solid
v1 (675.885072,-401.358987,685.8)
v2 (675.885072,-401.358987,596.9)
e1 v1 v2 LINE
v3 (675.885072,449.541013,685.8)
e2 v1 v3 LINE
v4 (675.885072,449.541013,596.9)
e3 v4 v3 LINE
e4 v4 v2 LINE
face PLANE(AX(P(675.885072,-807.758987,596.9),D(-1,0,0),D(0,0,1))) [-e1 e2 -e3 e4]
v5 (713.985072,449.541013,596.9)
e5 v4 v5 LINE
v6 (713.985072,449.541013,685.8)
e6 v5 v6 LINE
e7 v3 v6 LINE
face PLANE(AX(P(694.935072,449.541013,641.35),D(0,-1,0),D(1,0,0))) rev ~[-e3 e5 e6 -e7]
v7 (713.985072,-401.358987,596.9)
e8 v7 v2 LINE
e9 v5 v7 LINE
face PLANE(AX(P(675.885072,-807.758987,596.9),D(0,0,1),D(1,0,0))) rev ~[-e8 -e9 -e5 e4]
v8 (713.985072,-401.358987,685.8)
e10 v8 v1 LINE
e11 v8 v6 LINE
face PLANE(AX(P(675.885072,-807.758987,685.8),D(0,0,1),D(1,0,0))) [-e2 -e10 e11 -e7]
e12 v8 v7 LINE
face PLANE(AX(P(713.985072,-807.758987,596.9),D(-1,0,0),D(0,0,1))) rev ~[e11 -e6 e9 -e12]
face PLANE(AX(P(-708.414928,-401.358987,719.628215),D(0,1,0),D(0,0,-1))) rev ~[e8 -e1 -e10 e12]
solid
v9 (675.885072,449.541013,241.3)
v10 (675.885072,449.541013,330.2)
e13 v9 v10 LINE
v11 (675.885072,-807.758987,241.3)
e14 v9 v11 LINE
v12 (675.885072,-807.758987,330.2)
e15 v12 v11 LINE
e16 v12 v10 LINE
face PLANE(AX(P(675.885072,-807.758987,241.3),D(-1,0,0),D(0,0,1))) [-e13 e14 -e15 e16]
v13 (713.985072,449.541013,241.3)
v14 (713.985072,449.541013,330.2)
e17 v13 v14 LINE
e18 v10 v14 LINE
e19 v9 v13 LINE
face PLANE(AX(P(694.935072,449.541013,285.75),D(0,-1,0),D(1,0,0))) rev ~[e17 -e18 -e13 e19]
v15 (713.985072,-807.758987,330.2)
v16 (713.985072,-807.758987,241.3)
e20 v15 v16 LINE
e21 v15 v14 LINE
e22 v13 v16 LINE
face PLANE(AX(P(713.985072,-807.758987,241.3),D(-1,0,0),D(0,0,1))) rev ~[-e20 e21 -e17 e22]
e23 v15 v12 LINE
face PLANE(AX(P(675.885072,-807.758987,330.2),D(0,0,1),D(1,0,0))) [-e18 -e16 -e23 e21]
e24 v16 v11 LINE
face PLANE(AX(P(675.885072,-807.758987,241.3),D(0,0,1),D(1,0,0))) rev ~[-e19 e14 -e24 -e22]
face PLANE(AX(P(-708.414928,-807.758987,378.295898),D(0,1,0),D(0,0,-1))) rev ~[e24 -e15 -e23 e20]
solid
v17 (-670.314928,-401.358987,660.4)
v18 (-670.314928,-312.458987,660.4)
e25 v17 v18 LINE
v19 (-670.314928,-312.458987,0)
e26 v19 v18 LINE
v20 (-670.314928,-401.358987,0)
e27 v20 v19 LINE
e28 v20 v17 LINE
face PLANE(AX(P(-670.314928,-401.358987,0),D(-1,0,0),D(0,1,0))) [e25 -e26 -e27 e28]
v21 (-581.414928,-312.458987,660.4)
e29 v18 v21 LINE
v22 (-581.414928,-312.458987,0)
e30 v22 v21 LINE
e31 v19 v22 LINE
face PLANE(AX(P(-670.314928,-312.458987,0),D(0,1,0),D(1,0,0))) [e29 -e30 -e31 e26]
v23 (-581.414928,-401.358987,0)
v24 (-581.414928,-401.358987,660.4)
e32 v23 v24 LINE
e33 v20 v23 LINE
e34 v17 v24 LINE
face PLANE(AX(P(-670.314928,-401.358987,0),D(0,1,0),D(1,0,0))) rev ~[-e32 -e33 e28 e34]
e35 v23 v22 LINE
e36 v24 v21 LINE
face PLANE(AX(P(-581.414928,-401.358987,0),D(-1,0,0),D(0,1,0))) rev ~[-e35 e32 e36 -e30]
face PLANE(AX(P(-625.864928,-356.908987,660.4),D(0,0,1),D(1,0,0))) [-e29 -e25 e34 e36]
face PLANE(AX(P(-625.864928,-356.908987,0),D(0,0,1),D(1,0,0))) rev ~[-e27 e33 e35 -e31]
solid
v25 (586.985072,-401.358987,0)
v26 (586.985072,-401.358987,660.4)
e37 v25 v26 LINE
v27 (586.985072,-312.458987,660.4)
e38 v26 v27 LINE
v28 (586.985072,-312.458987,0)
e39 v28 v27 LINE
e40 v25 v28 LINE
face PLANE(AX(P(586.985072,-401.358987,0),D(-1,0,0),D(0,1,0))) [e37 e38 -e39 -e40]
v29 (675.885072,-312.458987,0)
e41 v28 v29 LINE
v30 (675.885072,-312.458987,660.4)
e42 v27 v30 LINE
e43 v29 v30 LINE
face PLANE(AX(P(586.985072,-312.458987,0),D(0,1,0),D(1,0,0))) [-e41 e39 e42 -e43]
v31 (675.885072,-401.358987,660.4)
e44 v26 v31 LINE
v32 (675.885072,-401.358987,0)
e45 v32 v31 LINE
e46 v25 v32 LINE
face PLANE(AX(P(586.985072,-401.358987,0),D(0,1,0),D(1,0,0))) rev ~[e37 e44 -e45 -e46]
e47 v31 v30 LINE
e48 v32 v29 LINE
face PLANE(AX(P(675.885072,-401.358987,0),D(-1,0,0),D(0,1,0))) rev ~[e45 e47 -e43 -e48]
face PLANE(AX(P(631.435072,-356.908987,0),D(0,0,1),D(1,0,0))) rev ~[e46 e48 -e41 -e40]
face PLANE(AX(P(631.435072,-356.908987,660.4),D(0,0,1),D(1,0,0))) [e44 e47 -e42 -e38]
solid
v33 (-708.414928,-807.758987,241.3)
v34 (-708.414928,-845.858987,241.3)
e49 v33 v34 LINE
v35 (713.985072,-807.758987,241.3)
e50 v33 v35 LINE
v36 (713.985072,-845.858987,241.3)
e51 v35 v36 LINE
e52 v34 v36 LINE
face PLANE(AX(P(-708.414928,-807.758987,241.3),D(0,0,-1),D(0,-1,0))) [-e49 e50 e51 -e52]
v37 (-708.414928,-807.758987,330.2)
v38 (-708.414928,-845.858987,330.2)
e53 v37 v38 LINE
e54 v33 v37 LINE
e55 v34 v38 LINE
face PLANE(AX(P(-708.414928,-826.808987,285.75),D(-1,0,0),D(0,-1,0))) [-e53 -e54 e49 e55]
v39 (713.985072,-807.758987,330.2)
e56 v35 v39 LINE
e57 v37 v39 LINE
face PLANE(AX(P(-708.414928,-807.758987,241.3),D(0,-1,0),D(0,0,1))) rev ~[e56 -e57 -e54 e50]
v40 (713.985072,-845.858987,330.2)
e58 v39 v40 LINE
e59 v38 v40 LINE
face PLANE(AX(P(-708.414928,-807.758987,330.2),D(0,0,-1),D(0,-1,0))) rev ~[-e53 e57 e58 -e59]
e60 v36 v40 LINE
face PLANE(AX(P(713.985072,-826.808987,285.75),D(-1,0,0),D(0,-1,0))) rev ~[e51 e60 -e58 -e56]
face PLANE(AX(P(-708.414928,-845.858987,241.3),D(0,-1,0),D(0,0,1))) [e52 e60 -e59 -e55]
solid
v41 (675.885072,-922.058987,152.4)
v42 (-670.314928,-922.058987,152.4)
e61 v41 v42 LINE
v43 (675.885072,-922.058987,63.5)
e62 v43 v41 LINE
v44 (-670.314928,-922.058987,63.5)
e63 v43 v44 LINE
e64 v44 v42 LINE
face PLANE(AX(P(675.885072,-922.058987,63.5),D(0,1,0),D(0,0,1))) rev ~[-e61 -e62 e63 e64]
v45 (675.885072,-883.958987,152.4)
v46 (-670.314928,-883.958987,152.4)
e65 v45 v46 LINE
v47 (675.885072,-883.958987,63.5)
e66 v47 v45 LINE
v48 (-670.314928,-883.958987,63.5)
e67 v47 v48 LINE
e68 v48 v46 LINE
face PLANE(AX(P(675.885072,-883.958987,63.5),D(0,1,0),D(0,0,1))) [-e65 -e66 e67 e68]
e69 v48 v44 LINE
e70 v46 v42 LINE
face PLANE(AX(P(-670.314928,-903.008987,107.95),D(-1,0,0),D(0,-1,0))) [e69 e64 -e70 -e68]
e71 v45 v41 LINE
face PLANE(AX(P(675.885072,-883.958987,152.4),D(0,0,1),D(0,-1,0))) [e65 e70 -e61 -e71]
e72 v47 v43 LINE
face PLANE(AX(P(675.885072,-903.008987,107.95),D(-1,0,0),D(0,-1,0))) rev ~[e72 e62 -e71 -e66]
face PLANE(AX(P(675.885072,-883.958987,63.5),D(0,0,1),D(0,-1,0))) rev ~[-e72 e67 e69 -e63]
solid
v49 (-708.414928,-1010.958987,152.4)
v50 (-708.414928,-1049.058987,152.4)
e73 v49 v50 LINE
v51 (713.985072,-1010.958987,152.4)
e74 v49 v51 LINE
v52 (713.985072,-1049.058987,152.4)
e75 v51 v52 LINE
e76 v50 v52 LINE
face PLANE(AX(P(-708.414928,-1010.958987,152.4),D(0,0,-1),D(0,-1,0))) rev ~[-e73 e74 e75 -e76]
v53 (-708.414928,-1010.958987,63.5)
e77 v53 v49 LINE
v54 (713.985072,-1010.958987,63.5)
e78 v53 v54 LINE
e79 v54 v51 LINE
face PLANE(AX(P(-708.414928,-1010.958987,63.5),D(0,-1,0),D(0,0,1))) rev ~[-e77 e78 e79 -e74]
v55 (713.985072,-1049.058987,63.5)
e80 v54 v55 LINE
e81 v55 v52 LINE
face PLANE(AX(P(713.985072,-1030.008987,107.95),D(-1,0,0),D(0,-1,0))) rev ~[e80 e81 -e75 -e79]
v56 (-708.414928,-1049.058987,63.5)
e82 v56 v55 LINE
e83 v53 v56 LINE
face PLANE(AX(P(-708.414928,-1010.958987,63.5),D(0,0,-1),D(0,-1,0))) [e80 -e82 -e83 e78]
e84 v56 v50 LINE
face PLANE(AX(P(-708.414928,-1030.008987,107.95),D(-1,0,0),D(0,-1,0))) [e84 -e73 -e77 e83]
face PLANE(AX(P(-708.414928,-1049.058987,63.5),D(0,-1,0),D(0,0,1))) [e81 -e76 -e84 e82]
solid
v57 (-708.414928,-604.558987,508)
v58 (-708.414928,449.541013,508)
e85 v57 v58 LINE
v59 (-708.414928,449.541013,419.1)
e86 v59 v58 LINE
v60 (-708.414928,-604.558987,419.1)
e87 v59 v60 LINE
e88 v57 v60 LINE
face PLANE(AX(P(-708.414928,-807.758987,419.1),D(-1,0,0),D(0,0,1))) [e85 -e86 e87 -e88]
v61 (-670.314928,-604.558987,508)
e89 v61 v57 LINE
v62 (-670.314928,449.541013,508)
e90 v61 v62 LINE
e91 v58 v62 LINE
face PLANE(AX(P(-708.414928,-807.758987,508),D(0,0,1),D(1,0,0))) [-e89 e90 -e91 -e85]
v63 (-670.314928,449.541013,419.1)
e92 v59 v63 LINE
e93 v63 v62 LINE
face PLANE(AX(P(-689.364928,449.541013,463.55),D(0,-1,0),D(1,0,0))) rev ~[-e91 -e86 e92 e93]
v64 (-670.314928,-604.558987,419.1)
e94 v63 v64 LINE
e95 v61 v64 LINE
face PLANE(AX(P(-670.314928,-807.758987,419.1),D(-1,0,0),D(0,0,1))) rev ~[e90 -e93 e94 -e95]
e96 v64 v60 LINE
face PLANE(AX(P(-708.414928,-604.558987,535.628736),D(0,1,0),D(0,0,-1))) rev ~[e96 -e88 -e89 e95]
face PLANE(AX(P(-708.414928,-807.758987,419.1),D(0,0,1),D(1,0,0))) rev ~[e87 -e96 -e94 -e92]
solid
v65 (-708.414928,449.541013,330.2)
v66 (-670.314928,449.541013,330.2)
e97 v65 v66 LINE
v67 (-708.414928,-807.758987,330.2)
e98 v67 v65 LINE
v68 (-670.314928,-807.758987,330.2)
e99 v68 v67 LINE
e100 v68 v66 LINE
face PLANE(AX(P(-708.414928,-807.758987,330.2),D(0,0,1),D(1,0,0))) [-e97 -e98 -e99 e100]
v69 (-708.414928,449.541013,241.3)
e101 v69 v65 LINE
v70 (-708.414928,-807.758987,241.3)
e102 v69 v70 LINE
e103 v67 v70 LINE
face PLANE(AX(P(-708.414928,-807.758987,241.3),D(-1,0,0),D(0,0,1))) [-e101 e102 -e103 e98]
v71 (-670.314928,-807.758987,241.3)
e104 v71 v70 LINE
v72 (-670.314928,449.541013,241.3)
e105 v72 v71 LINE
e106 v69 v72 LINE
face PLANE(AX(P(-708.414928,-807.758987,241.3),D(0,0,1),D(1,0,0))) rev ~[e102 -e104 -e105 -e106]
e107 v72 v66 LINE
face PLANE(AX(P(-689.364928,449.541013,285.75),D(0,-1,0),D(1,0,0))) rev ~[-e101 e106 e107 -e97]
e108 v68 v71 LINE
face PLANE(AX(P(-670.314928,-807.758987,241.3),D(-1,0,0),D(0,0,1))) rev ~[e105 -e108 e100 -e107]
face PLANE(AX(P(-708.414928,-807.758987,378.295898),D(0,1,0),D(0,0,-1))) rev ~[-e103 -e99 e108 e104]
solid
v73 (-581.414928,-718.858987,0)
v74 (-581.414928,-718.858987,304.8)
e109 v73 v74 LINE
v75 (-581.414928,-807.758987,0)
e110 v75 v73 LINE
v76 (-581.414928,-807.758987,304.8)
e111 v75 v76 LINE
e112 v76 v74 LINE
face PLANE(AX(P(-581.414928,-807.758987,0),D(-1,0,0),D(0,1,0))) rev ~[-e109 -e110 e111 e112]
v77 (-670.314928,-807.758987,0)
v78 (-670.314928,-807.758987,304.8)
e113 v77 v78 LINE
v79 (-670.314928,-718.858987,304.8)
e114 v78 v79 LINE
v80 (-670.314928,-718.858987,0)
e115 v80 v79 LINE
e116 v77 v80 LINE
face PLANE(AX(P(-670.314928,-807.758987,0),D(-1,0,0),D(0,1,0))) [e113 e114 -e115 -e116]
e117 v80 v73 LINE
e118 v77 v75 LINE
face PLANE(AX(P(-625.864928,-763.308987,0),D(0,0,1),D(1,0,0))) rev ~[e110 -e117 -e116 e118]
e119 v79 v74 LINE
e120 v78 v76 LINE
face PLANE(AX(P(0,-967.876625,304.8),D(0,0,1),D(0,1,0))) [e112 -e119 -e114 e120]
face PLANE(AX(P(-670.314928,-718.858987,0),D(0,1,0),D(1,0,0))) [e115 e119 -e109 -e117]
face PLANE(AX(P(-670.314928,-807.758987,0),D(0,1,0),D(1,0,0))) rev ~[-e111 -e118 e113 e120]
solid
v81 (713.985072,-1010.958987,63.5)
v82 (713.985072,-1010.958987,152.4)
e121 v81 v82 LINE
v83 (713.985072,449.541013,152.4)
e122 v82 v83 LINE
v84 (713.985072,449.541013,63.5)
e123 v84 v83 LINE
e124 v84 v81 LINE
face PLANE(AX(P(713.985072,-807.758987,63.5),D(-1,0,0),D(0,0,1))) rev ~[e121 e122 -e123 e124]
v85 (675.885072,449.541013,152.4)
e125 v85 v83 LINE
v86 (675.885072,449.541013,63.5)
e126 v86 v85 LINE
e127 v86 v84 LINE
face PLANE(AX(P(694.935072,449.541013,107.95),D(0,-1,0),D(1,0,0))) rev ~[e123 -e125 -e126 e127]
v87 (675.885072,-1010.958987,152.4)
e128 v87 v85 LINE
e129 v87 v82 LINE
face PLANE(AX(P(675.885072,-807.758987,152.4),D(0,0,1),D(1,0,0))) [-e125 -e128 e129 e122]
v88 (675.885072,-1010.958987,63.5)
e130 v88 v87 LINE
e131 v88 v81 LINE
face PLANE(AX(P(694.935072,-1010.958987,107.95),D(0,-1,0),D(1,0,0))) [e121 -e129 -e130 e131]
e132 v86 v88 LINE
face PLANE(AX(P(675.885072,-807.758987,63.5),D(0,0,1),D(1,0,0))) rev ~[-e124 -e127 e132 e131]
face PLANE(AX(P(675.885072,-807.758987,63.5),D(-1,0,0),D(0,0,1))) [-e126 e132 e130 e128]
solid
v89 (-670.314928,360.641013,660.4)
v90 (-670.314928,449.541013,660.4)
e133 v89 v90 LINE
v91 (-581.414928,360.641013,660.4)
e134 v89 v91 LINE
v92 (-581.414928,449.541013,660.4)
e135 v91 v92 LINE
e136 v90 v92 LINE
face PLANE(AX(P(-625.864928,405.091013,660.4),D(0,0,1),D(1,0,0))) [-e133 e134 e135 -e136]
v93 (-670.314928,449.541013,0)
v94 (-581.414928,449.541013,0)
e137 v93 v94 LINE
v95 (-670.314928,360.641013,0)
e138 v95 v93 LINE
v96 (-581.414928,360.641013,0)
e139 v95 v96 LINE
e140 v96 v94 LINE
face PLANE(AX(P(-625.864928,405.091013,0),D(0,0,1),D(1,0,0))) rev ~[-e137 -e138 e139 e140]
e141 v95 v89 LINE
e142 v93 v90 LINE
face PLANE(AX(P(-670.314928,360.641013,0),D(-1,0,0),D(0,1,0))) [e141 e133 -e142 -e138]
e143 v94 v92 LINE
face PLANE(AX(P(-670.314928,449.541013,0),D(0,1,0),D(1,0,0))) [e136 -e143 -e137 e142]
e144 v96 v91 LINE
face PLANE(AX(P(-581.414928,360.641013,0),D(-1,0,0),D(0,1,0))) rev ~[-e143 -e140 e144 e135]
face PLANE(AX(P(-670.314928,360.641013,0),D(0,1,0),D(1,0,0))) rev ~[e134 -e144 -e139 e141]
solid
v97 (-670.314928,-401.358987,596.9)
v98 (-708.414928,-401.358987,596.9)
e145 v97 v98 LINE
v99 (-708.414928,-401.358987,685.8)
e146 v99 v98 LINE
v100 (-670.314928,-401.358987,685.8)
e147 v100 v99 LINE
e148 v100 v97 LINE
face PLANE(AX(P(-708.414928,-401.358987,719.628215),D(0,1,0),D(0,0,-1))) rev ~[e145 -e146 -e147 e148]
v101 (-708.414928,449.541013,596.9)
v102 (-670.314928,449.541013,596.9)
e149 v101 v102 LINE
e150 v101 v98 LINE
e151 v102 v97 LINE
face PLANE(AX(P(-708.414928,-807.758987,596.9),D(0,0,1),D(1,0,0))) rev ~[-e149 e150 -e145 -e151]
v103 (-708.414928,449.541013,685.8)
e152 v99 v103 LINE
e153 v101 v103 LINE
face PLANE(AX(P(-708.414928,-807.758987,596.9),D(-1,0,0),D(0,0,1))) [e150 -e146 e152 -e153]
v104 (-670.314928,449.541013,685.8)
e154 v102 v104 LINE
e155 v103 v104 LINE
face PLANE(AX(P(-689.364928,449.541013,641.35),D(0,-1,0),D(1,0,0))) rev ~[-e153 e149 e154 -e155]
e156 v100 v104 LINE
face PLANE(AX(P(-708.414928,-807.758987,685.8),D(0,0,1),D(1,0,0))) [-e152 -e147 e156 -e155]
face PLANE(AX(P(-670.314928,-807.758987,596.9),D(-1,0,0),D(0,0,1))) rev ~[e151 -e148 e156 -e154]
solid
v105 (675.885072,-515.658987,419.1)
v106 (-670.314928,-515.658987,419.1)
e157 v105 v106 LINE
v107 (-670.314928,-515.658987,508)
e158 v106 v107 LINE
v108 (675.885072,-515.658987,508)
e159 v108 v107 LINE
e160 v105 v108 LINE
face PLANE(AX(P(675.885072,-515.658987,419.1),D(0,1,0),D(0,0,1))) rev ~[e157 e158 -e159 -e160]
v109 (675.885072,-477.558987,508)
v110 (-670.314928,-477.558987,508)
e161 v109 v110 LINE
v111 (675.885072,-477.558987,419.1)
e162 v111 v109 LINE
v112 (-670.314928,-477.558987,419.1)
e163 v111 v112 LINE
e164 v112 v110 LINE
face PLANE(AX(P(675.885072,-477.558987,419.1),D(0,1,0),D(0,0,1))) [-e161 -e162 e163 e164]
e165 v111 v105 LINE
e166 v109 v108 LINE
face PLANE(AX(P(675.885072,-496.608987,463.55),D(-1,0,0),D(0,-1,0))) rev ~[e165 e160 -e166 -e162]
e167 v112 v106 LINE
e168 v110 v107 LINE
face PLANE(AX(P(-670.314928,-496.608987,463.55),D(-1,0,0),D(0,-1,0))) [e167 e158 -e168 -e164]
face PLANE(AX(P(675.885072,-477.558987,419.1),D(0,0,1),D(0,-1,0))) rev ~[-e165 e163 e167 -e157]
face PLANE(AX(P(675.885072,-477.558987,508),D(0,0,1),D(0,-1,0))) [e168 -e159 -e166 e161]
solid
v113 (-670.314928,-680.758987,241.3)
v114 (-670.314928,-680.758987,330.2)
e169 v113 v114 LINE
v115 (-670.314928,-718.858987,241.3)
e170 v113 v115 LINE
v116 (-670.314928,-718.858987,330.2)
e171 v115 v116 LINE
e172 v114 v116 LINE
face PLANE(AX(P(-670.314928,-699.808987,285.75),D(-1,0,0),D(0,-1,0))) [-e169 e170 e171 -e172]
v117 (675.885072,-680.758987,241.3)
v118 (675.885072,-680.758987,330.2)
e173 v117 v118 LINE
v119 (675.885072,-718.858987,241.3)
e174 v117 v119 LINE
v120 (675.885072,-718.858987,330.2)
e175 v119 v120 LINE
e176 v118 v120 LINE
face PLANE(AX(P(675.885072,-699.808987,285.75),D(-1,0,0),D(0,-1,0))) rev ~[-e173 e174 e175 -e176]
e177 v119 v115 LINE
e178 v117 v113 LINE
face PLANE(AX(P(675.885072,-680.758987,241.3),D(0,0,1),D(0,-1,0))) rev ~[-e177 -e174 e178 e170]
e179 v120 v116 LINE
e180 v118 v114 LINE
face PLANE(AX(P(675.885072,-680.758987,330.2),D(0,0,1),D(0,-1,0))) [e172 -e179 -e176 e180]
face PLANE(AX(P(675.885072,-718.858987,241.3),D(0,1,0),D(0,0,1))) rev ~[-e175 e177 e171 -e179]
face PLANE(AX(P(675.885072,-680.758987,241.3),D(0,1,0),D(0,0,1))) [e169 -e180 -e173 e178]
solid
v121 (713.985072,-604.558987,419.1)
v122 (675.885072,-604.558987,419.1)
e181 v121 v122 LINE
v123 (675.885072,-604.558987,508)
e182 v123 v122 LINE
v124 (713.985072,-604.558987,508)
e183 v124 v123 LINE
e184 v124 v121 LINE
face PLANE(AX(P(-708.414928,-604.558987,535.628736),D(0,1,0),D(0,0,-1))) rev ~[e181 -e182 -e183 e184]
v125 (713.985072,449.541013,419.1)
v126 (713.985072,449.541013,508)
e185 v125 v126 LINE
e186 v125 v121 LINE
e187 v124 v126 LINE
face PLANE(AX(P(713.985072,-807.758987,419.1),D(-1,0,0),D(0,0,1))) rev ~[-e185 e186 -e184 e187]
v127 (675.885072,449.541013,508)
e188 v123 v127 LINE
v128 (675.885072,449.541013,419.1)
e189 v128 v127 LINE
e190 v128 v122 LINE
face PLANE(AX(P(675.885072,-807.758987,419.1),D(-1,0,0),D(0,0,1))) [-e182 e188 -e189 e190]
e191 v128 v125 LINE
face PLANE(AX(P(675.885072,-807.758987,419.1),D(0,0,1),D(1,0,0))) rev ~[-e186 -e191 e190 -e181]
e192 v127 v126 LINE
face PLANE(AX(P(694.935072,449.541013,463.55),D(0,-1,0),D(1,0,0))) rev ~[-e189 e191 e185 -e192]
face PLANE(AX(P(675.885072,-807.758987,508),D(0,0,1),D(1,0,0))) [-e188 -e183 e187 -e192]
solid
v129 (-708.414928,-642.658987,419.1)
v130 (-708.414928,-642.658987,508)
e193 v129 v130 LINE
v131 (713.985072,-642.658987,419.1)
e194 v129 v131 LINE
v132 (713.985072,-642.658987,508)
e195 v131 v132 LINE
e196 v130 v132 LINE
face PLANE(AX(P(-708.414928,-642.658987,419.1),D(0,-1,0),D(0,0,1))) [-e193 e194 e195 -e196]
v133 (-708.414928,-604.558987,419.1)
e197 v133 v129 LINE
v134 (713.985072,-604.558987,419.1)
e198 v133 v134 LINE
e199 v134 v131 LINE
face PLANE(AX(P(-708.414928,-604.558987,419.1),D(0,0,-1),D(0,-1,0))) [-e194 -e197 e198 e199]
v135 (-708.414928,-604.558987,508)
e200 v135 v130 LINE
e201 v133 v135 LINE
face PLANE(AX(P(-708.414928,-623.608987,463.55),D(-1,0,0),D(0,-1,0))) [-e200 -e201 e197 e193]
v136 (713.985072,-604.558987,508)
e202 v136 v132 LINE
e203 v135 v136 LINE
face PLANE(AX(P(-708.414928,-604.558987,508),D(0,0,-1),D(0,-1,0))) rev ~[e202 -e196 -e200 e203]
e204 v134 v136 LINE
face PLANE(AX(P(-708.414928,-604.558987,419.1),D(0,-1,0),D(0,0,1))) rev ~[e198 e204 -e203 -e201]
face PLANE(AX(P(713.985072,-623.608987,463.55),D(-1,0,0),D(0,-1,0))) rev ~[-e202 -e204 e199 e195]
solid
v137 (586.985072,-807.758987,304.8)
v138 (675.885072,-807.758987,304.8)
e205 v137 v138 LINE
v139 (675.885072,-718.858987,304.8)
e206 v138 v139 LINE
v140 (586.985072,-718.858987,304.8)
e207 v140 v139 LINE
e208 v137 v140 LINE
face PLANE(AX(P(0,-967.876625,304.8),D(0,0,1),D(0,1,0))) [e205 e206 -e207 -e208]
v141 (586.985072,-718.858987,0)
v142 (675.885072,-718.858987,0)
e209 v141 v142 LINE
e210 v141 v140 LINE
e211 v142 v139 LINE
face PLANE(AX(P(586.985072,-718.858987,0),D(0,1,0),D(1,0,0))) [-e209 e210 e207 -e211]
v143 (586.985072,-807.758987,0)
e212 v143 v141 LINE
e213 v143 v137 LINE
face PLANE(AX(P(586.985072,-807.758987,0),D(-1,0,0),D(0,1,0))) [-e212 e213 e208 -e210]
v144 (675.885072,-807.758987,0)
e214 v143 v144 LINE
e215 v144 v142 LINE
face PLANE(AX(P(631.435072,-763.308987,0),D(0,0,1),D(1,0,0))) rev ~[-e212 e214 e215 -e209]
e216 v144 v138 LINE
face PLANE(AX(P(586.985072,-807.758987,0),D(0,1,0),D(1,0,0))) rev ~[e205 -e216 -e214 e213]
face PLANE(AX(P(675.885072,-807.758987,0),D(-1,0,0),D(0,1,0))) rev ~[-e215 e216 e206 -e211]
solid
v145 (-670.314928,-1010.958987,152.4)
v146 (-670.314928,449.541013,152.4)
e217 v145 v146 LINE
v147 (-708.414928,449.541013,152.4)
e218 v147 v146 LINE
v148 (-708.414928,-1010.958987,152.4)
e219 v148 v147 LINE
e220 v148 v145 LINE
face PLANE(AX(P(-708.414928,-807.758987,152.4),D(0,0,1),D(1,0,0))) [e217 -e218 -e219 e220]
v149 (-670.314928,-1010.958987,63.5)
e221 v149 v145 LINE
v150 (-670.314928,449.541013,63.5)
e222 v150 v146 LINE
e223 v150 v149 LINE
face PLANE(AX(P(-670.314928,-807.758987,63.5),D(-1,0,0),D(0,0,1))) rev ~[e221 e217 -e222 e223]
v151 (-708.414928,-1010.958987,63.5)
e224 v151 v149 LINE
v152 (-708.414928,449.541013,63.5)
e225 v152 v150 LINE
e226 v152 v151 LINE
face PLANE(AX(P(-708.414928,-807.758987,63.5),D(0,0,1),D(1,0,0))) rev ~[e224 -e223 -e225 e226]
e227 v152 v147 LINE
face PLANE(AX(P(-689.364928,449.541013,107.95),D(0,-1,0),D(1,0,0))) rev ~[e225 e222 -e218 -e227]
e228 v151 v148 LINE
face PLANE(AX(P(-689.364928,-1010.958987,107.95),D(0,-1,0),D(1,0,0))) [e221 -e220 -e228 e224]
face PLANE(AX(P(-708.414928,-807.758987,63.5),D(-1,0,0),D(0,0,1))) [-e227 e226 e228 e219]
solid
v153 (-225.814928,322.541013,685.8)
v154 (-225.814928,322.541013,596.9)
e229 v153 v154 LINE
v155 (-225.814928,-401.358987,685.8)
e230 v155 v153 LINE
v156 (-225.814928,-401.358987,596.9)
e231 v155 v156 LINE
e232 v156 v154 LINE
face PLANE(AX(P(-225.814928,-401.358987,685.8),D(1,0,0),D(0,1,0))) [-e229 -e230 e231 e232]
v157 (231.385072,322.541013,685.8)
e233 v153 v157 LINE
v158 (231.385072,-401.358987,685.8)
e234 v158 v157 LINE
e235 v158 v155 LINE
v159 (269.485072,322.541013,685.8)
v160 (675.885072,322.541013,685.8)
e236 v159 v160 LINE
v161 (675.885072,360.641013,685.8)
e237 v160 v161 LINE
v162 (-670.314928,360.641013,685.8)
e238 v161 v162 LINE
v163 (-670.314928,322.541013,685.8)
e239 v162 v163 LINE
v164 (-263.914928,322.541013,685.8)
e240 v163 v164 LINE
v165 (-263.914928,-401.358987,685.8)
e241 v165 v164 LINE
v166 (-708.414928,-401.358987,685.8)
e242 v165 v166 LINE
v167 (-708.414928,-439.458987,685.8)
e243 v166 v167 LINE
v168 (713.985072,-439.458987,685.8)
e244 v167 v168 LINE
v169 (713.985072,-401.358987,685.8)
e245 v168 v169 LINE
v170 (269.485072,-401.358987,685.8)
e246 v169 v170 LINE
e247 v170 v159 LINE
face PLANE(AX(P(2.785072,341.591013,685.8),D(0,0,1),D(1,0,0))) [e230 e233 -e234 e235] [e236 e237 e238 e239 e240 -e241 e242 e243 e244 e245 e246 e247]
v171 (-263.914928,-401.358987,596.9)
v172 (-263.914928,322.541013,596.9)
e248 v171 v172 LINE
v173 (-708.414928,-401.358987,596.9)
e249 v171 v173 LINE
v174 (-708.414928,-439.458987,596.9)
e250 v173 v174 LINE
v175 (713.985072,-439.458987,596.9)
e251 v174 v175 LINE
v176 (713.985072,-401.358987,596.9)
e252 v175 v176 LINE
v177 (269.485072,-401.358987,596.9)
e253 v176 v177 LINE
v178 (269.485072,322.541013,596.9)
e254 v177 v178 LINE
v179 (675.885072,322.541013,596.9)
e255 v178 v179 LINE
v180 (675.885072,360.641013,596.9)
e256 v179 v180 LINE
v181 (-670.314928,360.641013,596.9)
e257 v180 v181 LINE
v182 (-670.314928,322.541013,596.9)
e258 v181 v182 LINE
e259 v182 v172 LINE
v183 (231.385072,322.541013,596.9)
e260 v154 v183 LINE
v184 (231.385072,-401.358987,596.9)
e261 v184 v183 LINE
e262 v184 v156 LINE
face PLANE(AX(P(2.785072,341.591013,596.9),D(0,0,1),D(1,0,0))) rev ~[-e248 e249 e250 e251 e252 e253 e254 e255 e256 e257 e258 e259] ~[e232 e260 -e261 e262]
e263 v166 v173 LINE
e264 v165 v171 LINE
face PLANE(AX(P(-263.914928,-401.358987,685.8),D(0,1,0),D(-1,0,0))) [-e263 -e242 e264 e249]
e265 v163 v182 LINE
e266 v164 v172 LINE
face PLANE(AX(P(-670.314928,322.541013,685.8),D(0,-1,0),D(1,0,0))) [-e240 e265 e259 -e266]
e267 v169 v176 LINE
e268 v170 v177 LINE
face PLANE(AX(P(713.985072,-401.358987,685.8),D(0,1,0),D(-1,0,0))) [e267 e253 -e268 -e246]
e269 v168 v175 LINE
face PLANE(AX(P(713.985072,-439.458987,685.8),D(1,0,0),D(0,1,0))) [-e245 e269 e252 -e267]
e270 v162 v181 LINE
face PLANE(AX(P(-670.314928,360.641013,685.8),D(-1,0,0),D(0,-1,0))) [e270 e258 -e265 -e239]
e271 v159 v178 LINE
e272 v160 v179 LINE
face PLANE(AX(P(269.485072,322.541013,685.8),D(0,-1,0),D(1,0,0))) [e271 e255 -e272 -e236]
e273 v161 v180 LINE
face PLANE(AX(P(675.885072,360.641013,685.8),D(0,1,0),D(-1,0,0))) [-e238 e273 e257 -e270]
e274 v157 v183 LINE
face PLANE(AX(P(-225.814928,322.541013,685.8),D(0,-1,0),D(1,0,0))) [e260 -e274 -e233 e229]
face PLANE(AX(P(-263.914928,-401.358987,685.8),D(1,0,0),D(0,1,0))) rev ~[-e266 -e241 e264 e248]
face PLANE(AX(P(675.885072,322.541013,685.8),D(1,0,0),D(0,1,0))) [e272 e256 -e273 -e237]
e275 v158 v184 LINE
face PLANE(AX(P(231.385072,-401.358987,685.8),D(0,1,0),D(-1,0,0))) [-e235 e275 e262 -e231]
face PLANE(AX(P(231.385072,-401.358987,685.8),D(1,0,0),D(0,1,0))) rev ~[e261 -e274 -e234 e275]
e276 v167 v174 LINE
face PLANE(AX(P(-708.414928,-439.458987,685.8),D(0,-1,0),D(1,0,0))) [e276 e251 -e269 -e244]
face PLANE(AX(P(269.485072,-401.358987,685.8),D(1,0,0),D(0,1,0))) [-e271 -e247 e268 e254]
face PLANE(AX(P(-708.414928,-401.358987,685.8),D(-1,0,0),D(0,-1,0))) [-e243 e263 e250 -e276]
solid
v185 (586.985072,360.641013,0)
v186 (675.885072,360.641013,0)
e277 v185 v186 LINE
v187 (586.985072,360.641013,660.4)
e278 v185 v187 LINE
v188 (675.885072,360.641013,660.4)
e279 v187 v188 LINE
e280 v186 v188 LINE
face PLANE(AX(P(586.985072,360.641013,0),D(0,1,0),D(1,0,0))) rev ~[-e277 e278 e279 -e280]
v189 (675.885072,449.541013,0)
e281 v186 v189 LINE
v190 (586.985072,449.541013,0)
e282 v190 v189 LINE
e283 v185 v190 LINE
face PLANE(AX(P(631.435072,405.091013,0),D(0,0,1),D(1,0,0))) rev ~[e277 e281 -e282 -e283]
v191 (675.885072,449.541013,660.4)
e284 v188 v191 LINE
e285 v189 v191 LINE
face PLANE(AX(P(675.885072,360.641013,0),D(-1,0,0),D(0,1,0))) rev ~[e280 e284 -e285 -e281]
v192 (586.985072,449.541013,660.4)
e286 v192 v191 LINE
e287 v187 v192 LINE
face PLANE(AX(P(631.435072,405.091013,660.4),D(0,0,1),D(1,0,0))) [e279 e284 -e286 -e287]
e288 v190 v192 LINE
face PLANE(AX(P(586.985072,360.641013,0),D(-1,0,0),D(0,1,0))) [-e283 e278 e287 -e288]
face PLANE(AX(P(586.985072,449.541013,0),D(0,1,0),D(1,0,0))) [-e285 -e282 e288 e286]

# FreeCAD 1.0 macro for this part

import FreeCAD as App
import Part
import Sketcher

V = App.Vector
Q = App.Units.Quantity


def add_polygon(sketch, points):
    """Adds a closed chain of lines whose ends are joined by coincident constraints."""
    first, n = sketch.GeometryCount, len(points)
    for a, b in zip(points, points[1:] + points[:1]):
        sketch.addGeometry(Part.LineSegment(App.Vector(*a, 0), App.Vector(*b, 0)), False)
    for i in range(n):
        sketch.addConstraint(Sketcher.Constraint("Coincident", first + i, 2, first + (i + 1) % n, 1))

doc = App.newDocument("Part")
body = doc.addObject("PartDesign::Body", "Body")

# Sketch on XY plane
sketch1 = doc.addObject("Sketcher::SketchObject", "Sketch")
body.addObject(sketch1)
sketch1.AttachmentSupport = (doc.XY_Plane, [""])
sketch1.MapMode = "FlatFace"
add_polygon(sketch1, [(-670, 450), (-670, 361), (-581, 361), (-581, 450)])  # lines 0-3
sketch1.addConstraint([
    Sketcher.Constraint("Vertical", 0),
    Sketcher.Constraint("Horizontal", 1),
    Sketcher.Constraint("Vertical", 2),
    Sketcher.Constraint("Horizontal", 3),
    Sketcher.Constraint("Equal", 3, 0),
    Sketcher.Constraint("DistanceX", 1, 1, 1, 2, Q("3.5 in")),
    Sketcher.Constraint("DistanceX", 0, 2, -1, 1, 670.314928),
    Sketcher.Constraint("DistanceY", -1, 1, 0, 2, 360.641013),
])
pad1 = doc.addObject("PartDesign::Pad", "Pad")
body.addObject(pad1)
pad1.Profile = sketch1
pad1.Length = Q("26 in")
body2 = doc.addObject("PartDesign::Body", "Body001")

# Sketch on XY plane
sketch2 = doc.addObject("Sketcher::SketchObject", "Sketch001")
body2.addObject(sketch2)
sketch2.AttachmentSupport = (doc.getObject("XY_Plane001"), [""])
sketch2.MapMode = "FlatFace"
add_polygon(sketch2, [(587, 450), (587, 361), (676, 361), (676, 450)])  # lines 0-3
sketch2.addConstraint([
    Sketcher.Constraint("Vertical", 0),
    Sketcher.Constraint("Horizontal", 1),
    Sketcher.Constraint("Vertical", 2),
    Sketcher.Constraint("Horizontal", 3),
    Sketcher.Constraint("Equal", 3, 0),
    Sketcher.Constraint("DistanceX", 1, 1, 1, 2, Q("3.5 in")),
    Sketcher.Constraint("DistanceX", -1, 1, 0, 2, 586.985072),
    Sketcher.Constraint("DistanceY", -1, 1, 0, 2, 360.641013),
])
pad2 = doc.addObject("PartDesign::Pad", "Pad001")
body2.addObject(pad2)
pad2.Profile = sketch2
pad2.Length = Q("26 in")
body3 = doc.addObject("PartDesign::Body", "Body002")

# Sketch on XY plane
sketch3 = doc.addObject("Sketcher::SketchObject", "Sketch002")
body3.addObject(sketch3)
sketch3.AttachmentSupport = (doc.getObject("XY_Plane002"), [""])
sketch3.MapMode = "FlatFace"
add_polygon(sketch3, [(-670, -312), (-670, -401), (-581, -401), (-581, -312)])  # lines 0-3
sketch3.addConstraint([
    Sketcher.Constraint("Vertical", 0),
    Sketcher.Constraint("Horizontal", 1),
    Sketcher.Constraint("Vertical", 2),
    Sketcher.Constraint("Horizontal", 3),
    Sketcher.Constraint("Equal", 3, 0),
    Sketcher.Constraint("DistanceX", 1, 1, 1, 2, Q("3.5 in")),
    Sketcher.Constraint("DistanceX", 0, 2, -1, 1, 670.314928),
    Sketcher.Constraint("DistanceY", 0, 2, -1, 1, 401.358987),
])
pad3 = doc.addObject("PartDesign::Pad", "Pad002")
body3.addObject(pad3)
pad3.Profile = sketch3
pad3.Length = Q("26 in")
body4 = doc.addObject("PartDesign::Body", "Body003")

# Sketch on XY plane
sketch4 = doc.addObject("Sketcher::SketchObject", "Sketch003")
body4.addObject(sketch4)
sketch4.AttachmentSupport = (doc.getObject("XY_Plane003"), [""])
sketch4.MapMode = "FlatFace"
add_polygon(sketch4, [(587, -312), (587, -401), (676, -401), (676, -312)])  # lines 0-3
sketch4.addConstraint([
    Sketcher.Constraint("Vertical", 0),
    Sketcher.Constraint("Horizontal", 1),
    Sketcher.Constraint("Vertical", 2),
    Sketcher.Constraint("Horizontal", 3),
    Sketcher.Constraint("Equal", 3, 0),
    Sketcher.Constraint("DistanceX", 1, 1, 1, 2, Q("3.5 in")),
    Sketcher.Constraint("DistanceX", -1, 1, 0, 2, 586.985072),
    Sketcher.Constraint("DistanceY", 0, 2, -1, 1, 401.358987),
])
pad4 = doc.addObject("PartDesign::Pad", "Pad003")
body4.addObject(pad4)
pad4.Profile = sketch4
pad4.Length = Q("26 in")
body5 = doc.addObject("PartDesign::Body", "Body004")

# Sketch on XY plane
sketch5 = doc.addObject("Sketcher::SketchObject", "Sketch004")
body5.addObject(sketch5)
sketch5.AttachmentSupport = (doc.getObject("XY_Plane004"), [""])
sketch5.MapMode = "FlatFace"
add_polygon(sketch5, [(-670, -719), (-670, -808), (-581, -808), (-581, -719)])  # lines 0-3
sketch5.addConstraint([
    Sketcher.Constraint("Vertical", 0),
    Sketcher.Constraint("Horizontal", 1),
    Sketcher.Constraint("Vertical", 2),
    Sketcher.Constraint("Horizontal", 3),
    Sketcher.Constraint("Equal", 3, 0),
    Sketcher.Constraint("DistanceX", 1, 1, 1, 2, Q("3.5 in")),
    Sketcher.Constraint("DistanceX", 0, 2, -1, 1, 670.314928),
    Sketcher.Constraint("DistanceY", 0, 2, -1, 1, 807.758987),
])
pad5 = doc.addObject("PartDesign::Pad", "Pad004")
body5.addObject(pad5)
pad5.Profile = sketch5
pad5.Length = Q("26 in")
body6 = doc.addObject("PartDesign::Body", "Body005")

# Sketch on XY plane
sketch6 = doc.addObject("Sketcher::SketchObject", "Sketch005")
body6.addObject(sketch6)
sketch6.AttachmentSupport = (doc.getObject("XY_Plane005"), [""])
sketch6.MapMode = "FlatFace"
add_polygon(sketch6, [(587, -719), (587, -808), (676, -808), (676, -719)])  # lines 0-3
sketch6.addConstraint([
    Sketcher.Constraint("Vertical", 0),
    Sketcher.Constraint("Horizontal", 1),
    Sketcher.Constraint("Vertical", 2),
    Sketcher.Constraint("Horizontal", 3),
    Sketcher.Constraint("Equal", 3, 0),
    Sketcher.Constraint("DistanceX", 1, 1, 1, 2, Q("3.5 in")),
    Sketcher.Constraint("DistanceX", -1, 1, 0, 2, 586.985072),
    Sketcher.Constraint("DistanceY", 0, 2, -1, 1, 807.758987),
])
pad6 = doc.addObject("PartDesign::Pad", "Pad005")
body6.addObject(pad6)
pad6.Profile = sketch6
pad6.Length = Q("26 in")
body7 = doc.addObject("PartDesign::Body", "Body006")

# Sketch on YZ plane
sketch7 = doc.addObject("Sketcher::SketchObject", "Sketch006")
body7.addObject(sketch7)
sketch7.AttachmentSupport = (doc.getObject("YZ_Plane006"), [""])
sketch7.MapMode = "FlatFace"
add_polygon(sketch7, [(-968, 708), (-968, 305), (-598, 305), (-598, 708)])  # lines 0-3
sketch7.addConstraint([
    Sketcher.Constraint("Vertical", 0),
    Sketcher.Constraint("Horizontal", 1),
    Sketcher.Constraint("Vertical", 2),
    Sketcher.Constraint("Horizontal", 3),
    Sketcher.Constraint("DistanceY", -1, 1, 0, 2, Q("12 in")),
    Sketcher.Constraint("DistanceX", 1, 1, 1, 2, 370.226704),
    Sketcher.Constraint("DistanceY", 0, 2, 0, 1, 403.192124),
    Sketcher.Constraint("DistanceX", 1, 2, -1, 1, 597.64992),
])
pad7 = doc.addObject("PartDesign::Pad", "Pad006")
body7.addObject(pad7)
pad7.Profile = sketch7
pad7.Type = "TwoLengths"
pad7.Length = Q("46.6 in")
pad7.Length2 = Q("44.6 in")
pad7.Reversed = True
doc.recompute()

body8 = doc.addObject("PartDesign::Body", "Body007")
body8.BaseFeature = body7
boolean = doc.addObject("PartDesign::Boolean", "Boolean")
body5.addObject(boolean)
boolean.Type = "Cut"
boolean.addObjects([body8])
doc.recompute()

boolean2 = doc.addObject("PartDesign::Boolean", "Boolean001")
body6.addObject(boolean2)
boolean2.Type = "Cut"
boolean2.addObjects([body7])
body9 = doc.addObject("PartDesign::Body", "Body008")

# Sketch on XZ plane
sketch8 = doc.addObject("Sketcher::SketchObject", "Sketch007")
body9.addObject(sketch8)
sketch8.AttachmentSupport = (doc.getObject("XZ_Plane008"), [""])
sketch8.MapMode = "FlatFace"
sketch8.AttachmentOffset = App.Placement(V(0, 0, 807.758987), App.Rotation())
add_polygon(sketch8, [(-708, 686), (-708, 597), (-670, 597), (-670, 686)])  # lines 0-3
sketch8.addConstraint([
    Sketcher.Constraint("Vertical", 0),
    Sketcher.Constraint("Horizontal", 1),
    Sketcher.Constraint("Vertical", 2),
    Sketcher.Constraint("Horizontal", 3),
    Sketcher.Constraint("DistanceX", 1, 1, 1, 2, Q("1.5 in")),
    Sketcher.Constraint("DistanceY", 0, 2, 0, 1, Q("3.5 in")),
    Sketcher.Constraint("DistanceY", -1, 1, 2, 2, Q("27 in")),
    Sketcher.Constraint("DistanceX", 0, 2, -1, 1, 708.414928),
])
pad8 = doc.addObject("PartDesign::Pad", "Pad007")
body9.addObject(pad8)
pad8.Profile = sketch8
pad8.Type = "TwoLengths"
pad8.Length = Q("49.5 in")
pad8.Length2 = Q("8 in")
pad8.Reversed = True
body10 = doc.addObject("PartDesign::Body", "Body009")

# Sketch on XZ plane
sketch9 = doc.addObject("Sketcher::SketchObject", "Sketch008")
body10.addObject(sketch9)
sketch9.AttachmentSupport = (doc.getObject("XZ_Plane009"), [""])
sketch9.MapMode = "FlatFace"
sketch9.AttachmentOffset = App.Placement(V(0, 0, 807.758987), App.Rotation())
add_polygon(sketch9, [(676, 686), (676, 597), (714, 597), (714, 686)])  # lines 0-3
sketch9.addConstraint([
    Sketcher.Constraint("Vertical", 0),
    Sketcher.Constraint("Horizontal", 1),
    Sketcher.Constraint("Vertical", 2),
    Sketcher.Constraint("Horizontal", 3),
    Sketcher.Constraint("DistanceX", 1, 1, 1, 2, Q("1.5 in")),
    Sketcher.Constraint("DistanceY", 0, 2, 0, 1, Q("3.5 in")),
    Sketcher.Constraint("DistanceY", -1, 1, 2, 2, Q("27 in")),
    Sketcher.Constraint("DistanceX", -1, 1, 0, 2, 675.885072),
])
pad9 = doc.addObject("PartDesign::Pad", "Pad008")
body10.addObject(pad9)
pad9.Profile = sketch9
pad9.Type = "TwoLengths"
pad9.Length = Q("49.5 in")
pad9.Length2 = Q("8 in")
pad9.Reversed = True
body11 = doc.addObject("PartDesign::Body", "Body010")

# Sketch on XZ plane
sketch10 = doc.addObject("Sketcher::SketchObject", "Sketch009")
body11.addObject(sketch10)
sketch10.AttachmentSupport = (doc.getObject("XZ_Plane010"), [""])
sketch10.MapMode = "FlatFace"
sketch10.AttachmentOffset = App.Placement(V(0, 0, 807.758987), App.Rotation())
add_polygon(sketch10, [(-708, 330), (-708, 241), (-670, 241), (-670, 330)])  # lines 0-3
sketch10.addConstraint([
    Sketcher.Constraint("Vertical", 0),
    Sketcher.Constraint("Horizontal", 1),
    Sketcher.Constraint("Vertical", 2),
    Sketcher.Constraint("Horizontal", 3),
    Sketcher.Constraint("DistanceX", 1, 1, 1, 2, Q("1.5 in")),
    Sketcher.Constraint("DistanceY", 0, 2, 0, 1, Q("3.5 in")),
    Sketcher.Constraint("DistanceY", -1, 1, 2, 2, Q("13 in")),
    Sketcher.Constraint("DistanceX", 0, 2, -1, 1, 708.414928),
])
pad10 = doc.addObject("PartDesign::Pad", "Pad009")
body11.addObject(pad10)
pad10.Profile = sketch10
pad10.Type = "TwoLengths"
pad10.Length = Q("49.5 in")
pad10.Length2 = Q("8 in")
pad10.Reversed = True
body12 = doc.addObject("PartDesign::Body", "Body011")

# Sketch on XZ plane
sketch11 = doc.addObject("Sketcher::SketchObject", "Sketch010")
body12.addObject(sketch11)
sketch11.AttachmentSupport = (doc.getObject("XZ_Plane011"), [""])
sketch11.MapMode = "FlatFace"
sketch11.AttachmentOffset = App.Placement(V(0, 0, 807.758987), App.Rotation())
add_polygon(sketch11, [(676, 330), (676, 241), (714, 241), (714, 330)])  # lines 0-3
sketch11.addConstraint([
    Sketcher.Constraint("Vertical", 0),
    Sketcher.Constraint("Horizontal", 1),
    Sketcher.Constraint("Vertical", 2),
    Sketcher.Constraint("Horizontal", 3),
    Sketcher.Constraint("DistanceX", 1, 1, 1, 2, Q("1.5 in")),
    Sketcher.Constraint("DistanceY", 0, 2, 0, 1, Q("3.5 in")),
    Sketcher.Constraint("DistanceY", -1, 1, 2, 2, Q("13 in")),
    Sketcher.Constraint("DistanceX", -1, 1, 0, 2, 675.885072),
])
pad11 = doc.addObject("PartDesign::Pad", "Pad010")
body12.addObject(pad11)
pad11.Profile = sketch11
pad11.Type = "TwoLengths"
pad11.Length = Q("49.5 in")
pad11.Length2 = Q("8 in")
pad11.Reversed = True
body13 = doc.addObject("PartDesign::Body", "Body012")

# Sketch on XZ plane
sketch12 = doc.addObject("Sketcher::SketchObject", "Sketch011")
body13.addObject(sketch12)
sketch12.AttachmentSupport = (doc.getObject("XZ_Plane012"), [""])
sketch12.MapMode = "FlatFace"
sketch12.AttachmentOffset = App.Placement(V(0, 0, 807.758987), App.Rotation())
add_polygon(sketch12, [(-708, 152), (-708, 64), (-670, 64), (-670, 152)])  # lines 0-3
sketch12.addConstraint([
    Sketcher.Constraint("Vertical", 0),
    Sketcher.Constraint("Horizontal", 1),
    Sketcher.Constraint("Vertical", 2),
    Sketcher.Constraint("Horizontal", 3),
    Sketcher.Constraint("DistanceX", 1, 1, 1, 2, Q("1.5 in")),
    Sketcher.Constraint("DistanceY", 0, 2, 0, 1, Q("3.5 in")),
    Sketcher.Constraint("DistanceY", -1, 1, 2, 2, Q("6 in")),
    Sketcher.Constraint("DistanceX", 0, 2, -1, 1, 708.414928),
])
pad12 = doc.addObject("PartDesign::Pad", "Pad011")
body13.addObject(pad12)
pad12.Profile = sketch12
pad12.Type = "TwoLengths"
pad12.Length = Q("49.5 in")
pad12.Length2 = Q("8 in")
pad12.Reversed = True
body14 = doc.addObject("PartDesign::Body", "Body013")

# Sketch on XZ plane
sketch13 = doc.addObject("Sketcher::SketchObject", "Sketch012")
body14.addObject(sketch13)
sketch13.AttachmentSupport = (doc.getObject("XZ_Plane013"), [""])
sketch13.MapMode = "FlatFace"
sketch13.AttachmentOffset = App.Placement(V(0, 0, 807.758987), App.Rotation())
add_polygon(sketch13, [(676, 152), (676, 64), (714, 64), (714, 152)])  # lines 0-3
sketch13.addConstraint([
    Sketcher.Constraint("Vertical", 0),
    Sketcher.Constraint("Horizontal", 1),
    Sketcher.Constraint("Vertical", 2),
    Sketcher.Constraint("Horizontal", 3),
    Sketcher.Constraint("DistanceX", 1, 1, 1, 2, Q("1.5 in")),
    Sketcher.Constraint("DistanceY", 0, 2, 0, 1, Q("3.5 in")),
    Sketcher.Constraint("DistanceY", -1, 1, 2, 2, Q("6 in")),
    Sketcher.Constraint("DistanceX", -1, 1, 0, 2, 675.885072),
])
pad13 = doc.addObject("PartDesign::Pad", "Pad012")
body14.addObject(pad13)
pad13.Profile = sketch13
pad13.Type = "TwoLengths"
pad13.Length = Q("49.5 in")
pad13.Length2 = Q("8 in")
pad13.Reversed = True
body15 = doc.addObject("PartDesign::Body", "Body014")

# Sketch on XZ plane
sketch14 = doc.addObject("Sketcher::SketchObject", "Sketch013")
body15.addObject(sketch14)
sketch14.AttachmentSupport = (doc.getObject("XZ_Plane014"), [""])
sketch14.MapMode = "FlatFace"
sketch14.AttachmentOffset = App.Placement(V(0, 0, 807.758987), App.Rotation())
add_polygon(sketch14, [(-708, 508), (-708, 419), (-670, 419), (-670, 508)])  # lines 0-3
sketch14.addConstraint([
    Sketcher.Constraint("Vertical", 0),
    Sketcher.Constraint("Horizontal", 1),
    Sketcher.Constraint("Vertical", 2),
    Sketcher.Constraint("Horizontal", 3),
    Sketcher.Constraint("DistanceX", 1, 1, 1, 2, Q("1.5 in")),
    Sketcher.Constraint("DistanceY", 0, 2, 0, 1, Q("3.5 in")),
    Sketcher.Constraint("DistanceY", -1, 1, 2, 2, Q("20 in")),
    Sketcher.Constraint("DistanceX", 0, 2, -1, 1, 708.414928),
])
pad14 = doc.addObject("PartDesign::Pad", "Pad013")
body15.addObject(pad14)
pad14.Profile = sketch14
pad14.Type = "TwoLengths"
pad14.Length = Q("49.5 in")
pad14.Length2 = Q("8 in")
pad14.Reversed = True
body16 = doc.addObject("PartDesign::Body", "Body015")

# Sketch on XZ plane
sketch15 = doc.addObject("Sketcher::SketchObject", "Sketch014")
body16.addObject(sketch15)
sketch15.AttachmentSupport = (doc.getObject("XZ_Plane015"), [""])
sketch15.MapMode = "FlatFace"
sketch15.AttachmentOffset = App.Placement(V(0, 0, 807.758987), App.Rotation())
add_polygon(sketch15, [(676, 508), (676, 419), (714, 419), (714, 508)])  # lines 0-3
sketch15.addConstraint([
    Sketcher.Constraint("Vertical", 0),
    Sketcher.Constraint("Horizontal", 1),
    Sketcher.Constraint("Vertical", 2),
    Sketcher.Constraint("Horizontal", 3),
    Sketcher.Constraint("DistanceX", 1, 1, 1, 2, Q("1.5 in")),
    Sketcher.Constraint("DistanceY", 0, 2, 0, 1, Q("3.5 in")),
    Sketcher.Constraint("DistanceY", -1, 1, 2, 2, Q("20 in")),
    Sketcher.Constraint("DistanceX", -1, 1, 0, 2, 675.885072),
])
pad15 = doc.addObject("PartDesign::Pad", "Pad014")
body16.addObject(pad15)
pad15.Profile = sketch15
pad15.Type = "TwoLengths"
pad15.Length = Q("49.5 in")
pad15.Length2 = Q("8 in")
pad15.Reversed = True
body17 = doc.addObject("PartDesign::Body", "Body016")

# Sketch on YZ plane
sketch16 = doc.addObject("Sketcher::SketchObject", "Sketch015")
body17.addObject(sketch16)
sketch16.AttachmentSupport = (doc.getObject("YZ_Plane016"), [""])
sketch16.MapMode = "FlatFace"
sketch16.AttachmentOffset = App.Placement(V(0, 0, -708.414928), App.Rotation())
add_polygon(sketch16, [(-1041, 722), (-401, 720), (-401, 536), (-605, 536), (-605, 378), (-808, 378), (-808, 221), (-1041, 221)])  # lines 0-7
sketch16.addConstraint([
    Sketcher.Constraint("Vertical", 1),
    Sketcher.Constraint("Horizontal", 2),
    Sketcher.Constraint("Vertical", 3),
    Sketcher.Constraint("Horizontal", 4),
    Sketcher.Constraint("Vertical", 5),
    Sketcher.Constraint("Horizontal", 6),
    Sketcher.Constraint("Vertical", 7),
    Sketcher.Constraint("Equal", 2, 4),
    Sketcher.Constraint("DistanceX", 2, 2, 2, 1, Q("8 in")),
    Sketcher.Constraint("DistanceX", 6, 2, 6, 1, 233.597959),
    Sketcher.Constraint("DistanceY", 1, 2, 1, 1, 183.999479),
    Sketcher.Constraint("DistanceY", 7, 1, 7, 2, 501.331821),
    Sketcher.Constraint("DistanceY", -1, 1, 3, 2, 378.295898),
    Sketcher.Constraint("DistanceY", 3, 2, 3, 1, 157.332838),
    Sketcher.Constraint("DistanceY", 5, 2, 5, 1, 157.332852),
    Sketcher.Constraint("DistanceX", 0, 2, -1, 1, 401.358987),
])
pad16 = doc.addObject("PartDesign::Pad", "Pad015")
body17.addObject(pad16)
pad16.Profile = sketch16
pad16.Length = Q("78.9 in")
doc.recompute()

body18 = doc.addObject("PartDesign::Body", "Body017")
body18.BaseFeature = body17
boolean3 = doc.addObject("PartDesign::Boolean", "Boolean002")
body9.addObject(boolean3)
boolean3.Type = "Cut"
boolean3.addObjects([body18])
doc.recompute()

body19 = doc.addObject("PartDesign::Body", "Body018")
body19.BaseFeature = body17
boolean4 = doc.addObject("PartDesign::Boolean", "Boolean003")
body10.addObject(boolean4)
boolean4.Type = "Cut"
boolean4.addObjects([body19])
doc.recompute()

body20 = doc.addObject("PartDesign::Body", "Body019")
body20.BaseFeature = body17
boolean5 = doc.addObject("PartDesign::Boolean", "Boolean004")
body11.addObject(boolean5)
boolean5.Type = "Cut"
boolean5.addObjects([body20])
doc.recompute()

body21 = doc.addObject("PartDesign::Body", "Body020")
body21.BaseFeature = body17
boolean6 = doc.addObject("PartDesign::Boolean", "Boolean005")
body12.addObject(boolean6)
boolean6.Type = "Cut"
boolean6.addObjects([body21])
doc.recompute()

body22 = doc.addObject("PartDesign::Body", "Body021")
body22.BaseFeature = body17
boolean7 = doc.addObject("PartDesign::Boolean", "Boolean006")
body15.addObject(boolean7)
boolean7.Type = "Cut"
boolean7.addObjects([body22])
doc.recompute()

boolean8 = doc.addObject("PartDesign::Boolean", "Boolean007")
body16.addObject(boolean8)
boolean8.Type = "Cut"
boolean8.addObjects([body17])
body23 = doc.addObject("PartDesign::Body", "Body022")

# Sketch on XY plane
sketch17 = doc.addObject("Sketcher::SketchObject", "Sketch016")
body23.addObject(sketch17)
sketch17.AttachmentSupport = (doc.getObject("XY_Plane022"), [""])
sketch17.MapMode = "FlatFace"
sketch17.AttachmentOffset = App.Placement(V(0, 0, 27 * 25.4), App.Rotation())
add_polygon(sketch17, [(676, 361), (-670, 361), (-670, 323), (-264, 323), (-264, -401), (-708, -401), (-708, -439), (714, -439), (714, -401), (269, -401), (269, 323), (676, 323)])  # lines 0-11
add_polygon(sketch17, [(-226, -401), (-226, 323), (231, 323), (231, -401)])  # lines 12-15
sketch17.addConstraint([
    Sketcher.Constraint("Horizontal", 0),
    Sketcher.Constraint("Vertical", 1),
    Sketcher.Constraint("Horizontal", 2),
    Sketcher.Constraint("Vertical", 3),
    Sketcher.Constraint("Horizontal", 4),
    Sketcher.Constraint("Vertical", 5),
    Sketcher.Constraint("Horizontal", 6),
    Sketcher.Constraint("Vertical", 7),
    Sketcher.Constraint("Horizontal", 8),
    Sketcher.Constraint("Vertical", 9),
    Sketcher.Constraint("Horizontal", 10),
    Sketcher.Constraint("Vertical", 11),
    Sketcher.Constraint("Vertical", 12),
    Sketcher.Constraint("Horizontal", 13),
    Sketcher.Constraint("Vertical", 14),
    Sketcher.Constraint("Horizontal", 15),
    Sketcher.Constraint("Horizontal", 4, 2, 7, 2),
    Sketcher.Constraint("Horizontal", 2, 2, 9, 2),
    Sketcher.Constraint("Horizontal", 10, 2, 12, 2),
    Sketcher.Constraint("Horizontal", 8, 2, 14, 2),
    Sketcher.Constraint("Equal", 4, 8),
    Sketcher.Constraint("Equal", 2, 10),
    Sketcher.Constraint("Equal", 1, 5),
    Sketcher.Constraint("DistanceX", 0, 2, 0, 1, Q("53 in")),
    Sketcher.Constraint("DistanceX", 2, 1, 2, 2, Q("16 in")),
    Sketcher.Constraint("DistanceX", 6, 1, 6, 2, Q("56 in")),
    Sketcher.Constraint("DistanceX", 13, 1, 13, 2, Q("18 in")),
    Sketcher.Constraint("DistanceY", 1, 2, 1, 1, Q("1.5 in")),
    Sketcher.Constraint("DistanceY", 3, 2, 3, 1, Q("28.5 in")),
    Sketcher.Constraint("DistanceX", 14, 2, 7, 2, Q("19 in")),
    Sketcher.Constraint("DistanceX", 0, 2, -1, 1, 670.314928),
    Sketcher.Constraint("DistanceY", -1, 1, 0, 2, 360.641013),
])
pad17 = doc.addObject("PartDesign::Pad", "Pad016")
body23.addObject(pad17)
pad17.Profile = sketch17
pad17.Length = Q("3.5 in")
pad17.Reversed = True
body24 = doc.addObject("PartDesign::Body", "Body023")

# Sketch on YZ plane
sketch18 = doc.addObject("Sketcher::SketchObject", "Sketch017")
body24.addObject(sketch18)
sketch18.AttachmentSupport = (doc.getObject("YZ_Plane023"), [""])
sketch18.MapMode = "FlatFace"
sketch18.AttachmentOffset = App.Placement(V(0, 0, -708.414928), App.Rotation())
add_polygon(sketch18, [(-605, 508), (-605, 419), (-643, 419), (-643, 508)])  # lines 0-3
sketch18.addConstraint([
    Sketcher.Constraint("Vertical", 0),
    Sketcher.Constraint("Horizontal", 1),
    Sketcher.Constraint("Vertical", 2),
    Sketcher.Constraint("Horizontal", 3),
    Sketcher.Constraint("DistanceX", 1, 2, 1, 1, Q("1.5 in")),
    Sketcher.Constraint("DistanceY", 0, 2, 0, 1, Q("3.5 in")),
    Sketcher.Constraint("DistanceY", -1, 1, 2, 2, Q("20 in")),
    Sketcher.Constraint("DistanceX", 0, 2, -1, 1, 604.558987),
])
pad18 = doc.addObject("PartDesign::Pad", "Pad017")
body24.addObject(pad18)
pad18.Profile = sketch18
pad18.Length = Q("56 in")
body25 = doc.addObject("PartDesign::Body", "Body024")

# Sketch on YZ plane
sketch19 = doc.addObject("Sketcher::SketchObject", "Sketch018")
body25.addObject(sketch19)
sketch19.AttachmentSupport = (doc.getObject("YZ_Plane024"), [""])
sketch19.MapMode = "FlatFace"
sketch19.AttachmentOffset = App.Placement(V(0, 0, -708.414928), App.Rotation())
add_polygon(sketch19, [(-808, 330), (-808, 241), (-846, 241), (-846, 330)])  # lines 0-3
sketch19.addConstraint([
    Sketcher.Constraint("Vertical", 0),
    Sketcher.Constraint("Horizontal", 1),
    Sketcher.Constraint("Vertical", 2),
    Sketcher.Constraint("Horizontal", 3),
    Sketcher.Constraint("DistanceX", 1, 2, 1, 1, Q("1.5 in")),
    Sketcher.Constraint("DistanceY", 0, 2, 0, 1, Q("3.5 in")),
    Sketcher.Constraint("DistanceY", -1, 1, 2, 2, Q("13 in")),
    Sketcher.Constraint("DistanceX", 0, 2, -1, 1, 807.758987),
])
pad19 = doc.addObject("PartDesign::Pad", "Pad018")
body25.addObject(pad19)
pad19.Profile = sketch19
pad19.Length = Q("56 in")
body26 = doc.addObject("PartDesign::Body", "Body025")

# Sketch on YZ plane
sketch20 = doc.addObject("Sketcher::SketchObject", "Sketch019")
body26.addObject(sketch20)
sketch20.AttachmentSupport = (doc.getObject("YZ_Plane025"), [""])
sketch20.MapMode = "FlatFace"
sketch20.AttachmentOffset = App.Placement(V(0, 0, -708.414928), App.Rotation())
add_polygon(sketch20, [(-1011, 152), (-1011, 64), (-1049, 64), (-1049, 152)])  # lines 0-3
sketch20.addConstraint([
    Sketcher.Constraint("Vertical", 0),
    Sketcher.Constraint("Horizontal", 1),
    Sketcher.Constraint("Vertical", 2),
    Sketcher.Constraint("Horizontal", 3),
    Sketcher.Constraint("DistanceX", 1, 2, 1, 1, Q("1.5 in")),
    Sketcher.Constraint("DistanceY", 0, 2, 0, 1, Q("3.5 in")),
    Sketcher.Constraint("DistanceY", -1, 1, 2, 2, Q("6 in")),
    Sketcher.Constraint("DistanceX", 0, 2, -1, 1, 1010.958987),
])
pad20 = doc.addObject("PartDesign::Pad", "Pad019")
body26.addObject(pad20)
pad20.Profile = sketch20
pad20.Length = Q("56 in")
body27 = doc.addObject("PartDesign::Body", "Body026")

# Sketch on YZ plane
sketch21 = doc.addObject("Sketcher::SketchObject", "Sketch020")
body27.addObject(sketch21)
sketch21.AttachmentSupport = (doc.getObject("YZ_Plane026"), [""])
sketch21.MapMode = "FlatFace"
sketch21.AttachmentOffset = App.Placement(V(0, 0, 675.885072), App.Rotation())
add_polygon(sketch21, [(-478, 508), (-478, 419), (-516, 419), (-516, 508)])  # lines 0-3
sketch21.addConstraint([
    Sketcher.Constraint("Vertical", 0),
    Sketcher.Constraint("Horizontal", 1),
    Sketcher.Constraint("Vertical", 2),
    Sketcher.Constraint("Horizontal", 3),
    Sketcher.Constraint("DistanceX", 1, 2, 1, 1, Q("1.5 in")),
    Sketcher.Constraint("DistanceY", 0, 2, 0, 1, Q("3.5 in")),
    Sketcher.Constraint("DistanceY", -1, 1, 2, 2, Q("20 in")),
    Sketcher.Constraint("DistanceX", 0, 2, -1, 1, 477.558987),
])
pad21 = doc.addObject("PartDesign::Pad", "Pad020")
body27.addObject(pad21)
pad21.Profile = sketch21
pad21.Length = Q("53 in")
pad21.Reversed = True
body28 = doc.addObject("PartDesign::Body", "Body027")

# Sketch on YZ plane
sketch22 = doc.addObject("Sketcher::SketchObject", "Sketch021")
body28.addObject(sketch22)
sketch22.AttachmentSupport = (doc.getObject("YZ_Plane027"), [""])
sketch22.MapMode = "FlatFace"
sketch22.AttachmentOffset = App.Placement(V(0, 0, 675.885072), App.Rotation())
add_polygon(sketch22, [(-884, 152), (-884, 64), (-922, 64), (-922, 152)])  # lines 0-3
sketch22.addConstraint([
    Sketcher.Constraint("Vertical", 0),
    Sketcher.Constraint("Horizontal", 1),
    Sketcher.Constraint("Vertical", 2),
    Sketcher.Constraint("Horizontal", 3),
    Sketcher.Constraint("DistanceX", 1, 2, 1, 1, Q("1.5 in")),
    Sketcher.Constraint("DistanceY", 0, 2, 0, 1, Q("3.5 in")),
    Sketcher.Constraint("DistanceY", -1, 1, 2, 2, Q("6 in")),
    Sketcher.Constraint("DistanceX", 0, 2, -1, 1, 883.958987),
])
pad22 = doc.addObject("PartDesign::Pad", "Pad021")
body28.addObject(pad22)
pad22.Profile = sketch22
pad22.Length = Q("53 in")
pad22.Reversed = True
body29 = doc.addObject("PartDesign::Body", "Body028")

# Sketch on YZ plane
sketch23 = doc.addObject("Sketcher::SketchObject", "Sketch022")
body29.addObject(sketch23)
sketch23.AttachmentSupport = (doc.getObject("YZ_Plane028"), [""])
sketch23.MapMode = "FlatFace"
sketch23.AttachmentOffset = App.Placement(V(0, 0, 675.885072), App.Rotation())
add_polygon(sketch23, [(-681, 330), (-681, 241), (-719, 241), (-719, 330)])  # lines 0-3
sketch23.addConstraint([
    Sketcher.Constraint("Vertical", 0),
    Sketcher.Constraint("Horizontal", 1),
    Sketcher.Constraint("Vertical", 2),
    Sketcher.Constraint("Horizontal", 3),
    Sketcher.Constraint("DistanceX", 1, 2, 1, 1, Q("1.5 in")),
    Sketcher.Constraint("DistanceY", 0, 2, 0, 1, Q("3.5 in")),
    Sketcher.Constraint("DistanceY", -1, 1, 2, 2, Q("13 in")),
    Sketcher.Constraint("DistanceX", 0, 2, -1, 1, 680.758987),
])
pad23 = doc.addObject("PartDesign::Pad", "Pad022")
body29.addObject(pad23)
pad23.Profile = sketch23
pad23.Length = Q("53 in")
pad23.Reversed = True

doc.recompute()
